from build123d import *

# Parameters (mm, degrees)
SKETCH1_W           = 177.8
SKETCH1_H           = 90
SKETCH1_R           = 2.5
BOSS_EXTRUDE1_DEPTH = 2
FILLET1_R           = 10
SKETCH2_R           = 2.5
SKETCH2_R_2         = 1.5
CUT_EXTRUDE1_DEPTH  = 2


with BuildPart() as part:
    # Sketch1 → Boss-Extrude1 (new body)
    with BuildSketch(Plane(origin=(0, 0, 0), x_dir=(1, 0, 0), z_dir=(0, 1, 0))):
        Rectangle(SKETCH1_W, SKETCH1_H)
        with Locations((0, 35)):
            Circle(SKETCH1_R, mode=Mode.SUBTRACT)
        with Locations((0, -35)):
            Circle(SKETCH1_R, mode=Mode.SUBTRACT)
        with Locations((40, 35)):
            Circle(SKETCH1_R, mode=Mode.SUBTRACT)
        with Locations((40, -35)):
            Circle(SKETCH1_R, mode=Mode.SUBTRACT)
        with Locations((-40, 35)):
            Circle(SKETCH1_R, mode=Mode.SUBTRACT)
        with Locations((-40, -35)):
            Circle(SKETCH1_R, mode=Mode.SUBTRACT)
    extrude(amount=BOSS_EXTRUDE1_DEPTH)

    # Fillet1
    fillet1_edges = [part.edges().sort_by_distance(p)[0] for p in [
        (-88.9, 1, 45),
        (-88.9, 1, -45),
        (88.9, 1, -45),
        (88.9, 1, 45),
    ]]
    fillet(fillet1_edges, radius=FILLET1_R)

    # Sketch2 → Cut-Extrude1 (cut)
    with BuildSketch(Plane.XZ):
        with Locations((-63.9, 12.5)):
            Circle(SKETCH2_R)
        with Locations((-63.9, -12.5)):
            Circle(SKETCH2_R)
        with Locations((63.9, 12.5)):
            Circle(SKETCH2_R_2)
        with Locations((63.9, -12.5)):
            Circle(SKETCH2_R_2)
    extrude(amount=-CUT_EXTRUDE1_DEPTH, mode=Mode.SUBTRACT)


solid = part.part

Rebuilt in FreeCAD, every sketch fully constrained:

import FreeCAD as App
import Part
import Sketcher
from FreeCAD import Vector


def edges_at(feature, points):
    """Names of the edges that pass closest to the given points."""
    edges = feature.Shape.Edges
    near = lambda p: min(range(len(edges)), key=lambda i: edges[i].distToShape(Part.Vertex(*p))[0])
    return sorted({f"Edge{near(p) + 1}" for p in points})


def add_polygon(sketch, points):
    """Adds a closed chain of lines whose ends are joined by coincident constraints."""
    first, n = sketch.GeometryCount, len(points)
    for a, b in zip(points, points[1:] + points[:1]):
        sketch.addGeometry(Part.LineSegment(App.Vector(*a, 0), App.Vector(*b, 0)), False)
    for i in range(n):
        sketch.addConstraint(Sketcher.Constraint("Coincident", first + i, 2, first + (i + 1) % n, 1))

doc = App.newDocument("Part")
body = doc.addObject("PartDesign::Body", "Body")

# Sketch on XZ plane
sketch1 = body.newObject("Sketcher::SketchObject", "Sketch")
sketch1.AttachmentSupport = (doc.getObject("XZ_Plane"), [""])
sketch1.MapMode = "FlatFace"
add_polygon(sketch1, [(-88.9, -45), (-88.9, 45), (88.9, 45), (88.9, -45)])  # lines 0-3
sketch1.addGeometry(Part.Circle(Vector(-40, 35, 0), Vector(0, 0, 1), 2.5), False)  # 4
sketch1.addGeometry(Part.Circle(Vector(0, 35, 0), Vector(0, 0, 1), 2.5), False)  # 5
sketch1.addGeometry(Part.Circle(Vector(40, 35, 0), Vector(0, 0, 1), 2.5), False)  # 6
sketch1.addGeometry(Part.Circle(Vector(-40, -35, 0), Vector(0, 0, 1), 2.5), False)  # 7
sketch1.addGeometry(Part.Circle(Vector(0, -35, 0), Vector(0, 0, 1), 2.5), False)  # 8
sketch1.addGeometry(Part.Circle(Vector(40, -35, 0), Vector(0, 0, 1), 2.5), False)  # 9
sketch1.addConstraint(Sketcher.Constraint("Vertical", 0))
sketch1.addConstraint(Sketcher.Constraint("Horizontal", 1))
sketch1.addConstraint(Sketcher.Constraint("Vertical", 2))
sketch1.addConstraint(Sketcher.Constraint("Horizontal", 3))
sketch1.addConstraint(Sketcher.Constraint("Equal", 4, 5))
sketch1.addConstraint(Sketcher.Constraint("Equal", 5, 6))
sketch1.addConstraint(Sketcher.Constraint("Equal", 6, 7))
sketch1.addConstraint(Sketcher.Constraint("Equal", 7, 8))
sketch1.addConstraint(Sketcher.Constraint("Equal", 8, 9))
sketch1.addConstraint(Sketcher.Constraint("Symmetric", 6, 3, 7, 3, -1, 1))
sketch1.addConstraint(Sketcher.Constraint("Symmetric", 5, 3, 8, 3, -1, 1))
sketch1.addConstraint(Sketcher.Constraint("Symmetric", 4, 3, 9, 3, -1, 1))
sketch1.addConstraint(Sketcher.Constraint("Symmetric", 0, 2, 2, 2, -1, 1))
sketch1.addConstraint(Sketcher.Constraint("Symmetric", 4, 3, 6, 3, -2))
sketch1.addConstraint(Sketcher.Constraint("PointOnObject", 5, 3, -2))
sketch1.addConstraint(Sketcher.Constraint("Horizontal", 4, 3, 5, 3))
sketch1.addConstraint(Sketcher.Constraint("Diameter", 4, 5.0))
sketch1.addConstraint(Sketcher.Constraint("DistanceY", 0, 1, 0, 2, 90.0))
sketch1.addConstraint(Sketcher.Constraint("DistanceX", 1, 1, 1, 2, 177.8))
sketch1.addConstraint(Sketcher.Constraint("DistanceX", 4, 3, -1, 1, 40.0))
sketch1.addConstraint(Sketcher.Constraint("DistanceY", -1, 1, 4, 3, 35.0))
pad1 = body.newObject("PartDesign::Pad", "Pad")
pad1.Profile = sketch1
pad1.Length = 2
pad1.Reversed = True
doc.recompute()

fillet = body.newObject("PartDesign::Fillet", "Fillet")
fillet.Base = (pad1, edges_at(pad1, [
    (-88.9, 1, 45),
    (-88.9, 1, -45),
    (88.9, 1, -45),
    (88.9, 1, 45),
]))
fillet.Radius = 10

# Sketch on XZ plane
sketch2 = body.newObject("Sketcher::SketchObject", "Sketch001")
sketch2.AttachmentSupport = (doc.getObject("XZ_Plane"), [""])
sketch2.MapMode = "FlatFace"
sketch2.addGeometry(Part.Circle(Vector(-63.9, 12.5, 0), Vector(0, 0, 1), 2.5), False)
sketch2.addGeometry(Part.Circle(Vector(-63.9, -12.5, 0), Vector(0, 0, 1), 2.5), False)
sketch2.addGeometry(Part.Circle(Vector(63.9, 12.5, 0), Vector(0, 0, 1), 1.5), False)
sketch2.addGeometry(Part.Circle(Vector(63.9, -12.5, 0), Vector(0, 0, 1), 1.5), False)
sketch2.addConstraint(Sketcher.Constraint("Equal", 0, 1))
sketch2.addConstraint(Sketcher.Constraint("Equal", 2, 3))
sketch2.addConstraint(Sketcher.Constraint("Symmetric", 1, 3, 2, 3, -1, 1))
sketch2.addConstraint(Sketcher.Constraint("Symmetric", 0, 3, 3, 3, -1, 1))
sketch2.addConstraint(Sketcher.Constraint("Symmetric", 0, 3, 2, 3, -2))
sketch2.addConstraint(Sketcher.Constraint("Diameter", 0, 5.0))
sketch2.addConstraint(Sketcher.Constraint("Diameter", 2, 3.0))
sketch2.addConstraint(Sketcher.Constraint("DistanceY", 1, 3, 0, 3, 25.0))
sketch2.addConstraint(Sketcher.Constraint("DistanceX", 0, 3, -1, 1, 63.9))
pocket1 = body.newObject("PartDesign::Pocket", "Pocket")
pocket1.Profile = sketch2
pocket1.Length = 2

doc.recompute()
